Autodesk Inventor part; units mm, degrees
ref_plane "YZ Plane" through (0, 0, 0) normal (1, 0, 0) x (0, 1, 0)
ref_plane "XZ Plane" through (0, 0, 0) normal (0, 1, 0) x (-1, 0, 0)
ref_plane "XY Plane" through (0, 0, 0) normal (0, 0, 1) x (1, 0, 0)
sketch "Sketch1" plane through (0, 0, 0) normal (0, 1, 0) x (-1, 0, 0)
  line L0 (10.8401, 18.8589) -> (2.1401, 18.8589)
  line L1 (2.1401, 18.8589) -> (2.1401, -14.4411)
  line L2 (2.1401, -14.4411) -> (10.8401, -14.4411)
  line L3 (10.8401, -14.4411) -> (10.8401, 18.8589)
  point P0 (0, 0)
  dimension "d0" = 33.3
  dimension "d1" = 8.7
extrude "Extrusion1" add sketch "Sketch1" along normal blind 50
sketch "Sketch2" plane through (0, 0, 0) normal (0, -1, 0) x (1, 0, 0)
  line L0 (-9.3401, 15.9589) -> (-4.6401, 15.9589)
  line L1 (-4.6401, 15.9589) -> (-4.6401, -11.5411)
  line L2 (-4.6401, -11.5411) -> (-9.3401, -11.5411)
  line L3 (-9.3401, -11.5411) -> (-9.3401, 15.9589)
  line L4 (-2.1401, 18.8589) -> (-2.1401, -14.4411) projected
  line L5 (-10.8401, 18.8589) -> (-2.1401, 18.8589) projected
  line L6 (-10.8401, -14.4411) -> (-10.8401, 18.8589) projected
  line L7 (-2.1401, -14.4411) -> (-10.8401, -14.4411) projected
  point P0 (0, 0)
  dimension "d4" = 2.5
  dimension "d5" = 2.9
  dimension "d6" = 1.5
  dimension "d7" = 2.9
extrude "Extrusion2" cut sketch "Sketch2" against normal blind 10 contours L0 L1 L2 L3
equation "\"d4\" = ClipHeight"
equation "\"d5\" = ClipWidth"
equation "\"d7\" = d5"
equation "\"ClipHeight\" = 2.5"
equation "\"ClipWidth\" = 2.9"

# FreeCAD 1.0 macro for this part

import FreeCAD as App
import Part
import Sketcher

V = App.Vector
Q = App.Units.Quantity


def add_polygon(sketch, points):
    """Adds a closed chain of lines whose ends are joined by coincident constraints."""
    first, n = sketch.GeometryCount, len(points)
    for a, b in zip(points, points[1:] + points[:1]):
        sketch.addGeometry(Part.LineSegment(App.Vector(*a, 0), App.Vector(*b, 0)), False)
    for i in range(n):
        sketch.addConstraint(Sketcher.Constraint("Coincident", first + i, 2, first + (i + 1) % n, 1))

doc = App.newDocument("Part")
body = doc.addObject("PartDesign::Body", "Body")

sketch1 = doc.addObject("Sketcher::SketchObject", "Sketch")
body.addObject(sketch1)
sketch1.AttachmentSupport = (doc.XZ_Plane, [""])
sketch1.MapMode = "FlatFace"
add_polygon(sketch1, [(-10.8401, -14.4411), (-10.8401, 18.8589), (-2.1401, 18.8589), (-2.1401, -14.4411)])
sketch1.addConstraint(Sketcher.Constraint("Vertical", 0))
sketch1.addConstraint(Sketcher.Constraint("Horizontal", 1))
sketch1.addConstraint(Sketcher.Constraint("Vertical", 2))
sketch1.addConstraint(Sketcher.Constraint("Horizontal", 3))
sketch1.addConstraint(Sketcher.Constraint("DistanceX", 1, 1, 1, 2, Q("8.7 mm")))
sketch1.addConstraint(Sketcher.Constraint("DistanceY", 0, 1, 0, 2, Q("33.3 mm")))
sketch1.addConstraint(Sketcher.Constraint("DistanceX", 0, 2, -1, 1, Q("10.84 mm")))
sketch1.addConstraint(Sketcher.Constraint("DistanceY", -1, 1, 0, 2, Q("18.859 mm")))
pad1 = doc.addObject("PartDesign::Pad", "Pad")
body.addObject(pad1)
pad1.Profile = sketch1
pad1.Length = 50
pad1.Reversed = True

sketch2 = doc.addObject("Sketcher::SketchObject", "Sketch001")
body.addObject(sketch2)
sketch2.AttachmentSupport = (doc.XZ_Plane, [""])
sketch2.MapMode = "FlatFace"
add_polygon(sketch2, [(-4.6401, 15.9589), (-9.3401, 15.9589), (-9.3401, -11.5411), (-4.6401, -11.5411)])
sketch2.addConstraint(Sketcher.Constraint("Horizontal", 0))
sketch2.addConstraint(Sketcher.Constraint("Vertical", 1))
sketch2.addConstraint(Sketcher.Constraint("Horizontal", 2))
sketch2.addConstraint(Sketcher.Constraint("Vertical", 3))
sketch2.addConstraint(Sketcher.Constraint("DistanceX", 0, 2, 0, 1, Q("4.7 mm")))
sketch2.addConstraint(Sketcher.Constraint("DistanceY", 1, 2, 1, 1, Q("27.5 mm")))
sketch2.addConstraint(Sketcher.Constraint("DistanceX", 0, 2, -1, 1, Q("9.34 mm")))
sketch2.addConstraint(Sketcher.Constraint("DistanceY", -1, 1, 0, 2, Q("15.959 mm")))
pocket1 = doc.addObject("PartDesign::Pocket", "Pocket")
body.addObject(pocket1)
pocket1.Profile = sketch2
pocket1.Length = 10

doc.recompute()
